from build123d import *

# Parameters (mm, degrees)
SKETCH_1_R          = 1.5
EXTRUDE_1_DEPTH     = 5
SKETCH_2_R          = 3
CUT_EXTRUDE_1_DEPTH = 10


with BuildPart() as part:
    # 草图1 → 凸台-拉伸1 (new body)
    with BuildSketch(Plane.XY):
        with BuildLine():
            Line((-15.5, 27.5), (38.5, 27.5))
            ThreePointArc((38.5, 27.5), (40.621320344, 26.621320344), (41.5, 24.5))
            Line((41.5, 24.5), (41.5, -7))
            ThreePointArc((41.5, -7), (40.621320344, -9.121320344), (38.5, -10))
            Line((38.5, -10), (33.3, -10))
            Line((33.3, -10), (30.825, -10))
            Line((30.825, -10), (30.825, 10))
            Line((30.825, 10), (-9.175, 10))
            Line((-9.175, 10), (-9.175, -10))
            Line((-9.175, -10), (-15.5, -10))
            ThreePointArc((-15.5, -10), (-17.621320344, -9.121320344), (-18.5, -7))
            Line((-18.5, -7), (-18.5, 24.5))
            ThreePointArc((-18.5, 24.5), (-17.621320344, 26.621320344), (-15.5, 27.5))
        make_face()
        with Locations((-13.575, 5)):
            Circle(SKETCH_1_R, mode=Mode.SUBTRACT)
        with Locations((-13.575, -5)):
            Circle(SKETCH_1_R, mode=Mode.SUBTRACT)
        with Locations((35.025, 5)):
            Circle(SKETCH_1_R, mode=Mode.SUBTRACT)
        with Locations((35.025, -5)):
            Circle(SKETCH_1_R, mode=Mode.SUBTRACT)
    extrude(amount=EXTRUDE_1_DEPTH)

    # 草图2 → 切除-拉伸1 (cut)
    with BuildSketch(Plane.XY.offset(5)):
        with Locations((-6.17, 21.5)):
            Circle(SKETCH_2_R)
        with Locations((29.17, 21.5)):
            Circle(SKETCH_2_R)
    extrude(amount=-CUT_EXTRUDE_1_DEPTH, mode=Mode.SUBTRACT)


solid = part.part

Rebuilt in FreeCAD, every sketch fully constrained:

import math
import FreeCAD as App
import Part
import Sketcher

V = App.Vector

doc = App.newDocument("Part")
params = doc.addObject("Spreadsheet::Sheet", "Params")
for row, (alias, value) in enumerate([
    ("sketch1_diameter", "3 mm"),
    ("sketch1_radius", "3 mm"),
    ("sketch1_width", "54 mm"),
    ("sketch1_width2", "40 mm"),
    ("sketch1_height", "20 mm"),
    ("pad1_length", "5 mm"),
    ("sketch2_diameter", "6 mm"),
    ("pocket1_length", "10 mm"),
], start=1):
    params.set(f"A{row}", alias)
    params.set(f"B{row}", "=" + value)
    params.setAlias(f"B{row}", alias)

body = doc.addObject("PartDesign::Body", "Body")

# Sketch on XY plane
sketch1 = body.newObject("Sketcher::SketchObject", "Sketch")
sketch1.AttachmentSupport = (doc.getObject("XY_Plane"), [""])
sketch1.MapMode = "FlatFace"
sketch1.addGeometry(Part.LineSegment(V(38.5, 27.5, 0), V(-15.5, 27.5, 0)), False)
sketch1.addGeometry(Part.ArcOfCircle(Part.Circle(V(-15.5, 24.5, 0), V(0, 0, 1), 3), math.radians(90), math.radians(180)), False)
sketch1.addGeometry(Part.LineSegment(V(-18.5, 24.5, 0), V(-18.5, -7, 0)), False)
sketch1.addGeometry(Part.ArcOfCircle(Part.Circle(V(-15.5, -7, 0), V(0, 0, 1), 3), math.radians(180), math.radians(270)), False)
sketch1.addGeometry(Part.LineSegment(V(-15.5, -10, 0), V(-9.2, -10, 0)), False)
sketch1.addGeometry(Part.LineSegment(V(-9.2, -10, 0), V(-9.2, 10, 0)), False)
sketch1.addGeometry(Part.LineSegment(V(-9.2, 10, 0), V(30.8, 10, 0)), False)
sketch1.addGeometry(Part.LineSegment(V(30.8, 10, 0), V(30.8, -10, 0)), False)
sketch1.addGeometry(Part.LineSegment(V(30.8, -10, 0), V(38.5, -10, 0)), False)
sketch1.addGeometry(Part.ArcOfCircle(Part.Circle(V(38.5, -7, 0), V(0, 0, 1), 3), math.radians(-90), math.radians(0)), False)
sketch1.addGeometry(Part.LineSegment(V(41.5, -7, 0), V(41.5, 24.5, 0)), False)
sketch1.addGeometry(Part.ArcOfCircle(Part.Circle(V(38.5, 24.5, 0), V(0, 0, 1), 3), math.radians(0), math.radians(90)), False)
sketch1.addGeometry(Part.Circle(V(35, -5, 0), V(0, 0, 1), 1.5), False)
sketch1.addGeometry(Part.Circle(V(-13.6, -5, 0), V(0, 0, 1), 1.5), False)
sketch1.addGeometry(Part.Circle(V(35, 5, 0), V(0, 0, 1), 1.5), False)
sketch1.addGeometry(Part.Circle(V(-13.6, 5, 0), V(0, 0, 1), 1.5), False)
sketch1.addConstraint(Sketcher.Constraint("Tangent", 0, 2, 1, 1))
sketch1.addConstraint(Sketcher.Constraint("Tangent", 1, 2, 2, 1))
sketch1.addConstraint(Sketcher.Constraint("Tangent", 2, 2, 3, 1))
sketch1.addConstraint(Sketcher.Constraint("Tangent", 3, 2, 4, 1))
sketch1.addConstraint(Sketcher.Constraint("Coincident", 4, 2, 5, 1))
sketch1.addConstraint(Sketcher.Constraint("Coincident", 5, 2, 6, 1))
sketch1.addConstraint(Sketcher.Constraint("Coincident", 6, 2, 7, 1))
sketch1.addConstraint(Sketcher.Constraint("Coincident", 7, 2, 8, 1))
sketch1.addConstraint(Sketcher.Constraint("Tangent", 8, 2, 9, 1))
sketch1.addConstraint(Sketcher.Constraint("Tangent", 9, 2, 10, 1))
sketch1.addConstraint(Sketcher.Constraint("Tangent", 10, 2, 11, 1))
sketch1.addConstraint(Sketcher.Constraint("Tangent", 11, 2, 0, 1))
sketch1.addConstraint(Sketcher.Constraint("Horizontal", 0))
sketch1.addConstraint(Sketcher.Constraint("Vertical", 2))
sketch1.addConstraint(Sketcher.Constraint("Horizontal", 4))
sketch1.addConstraint(Sketcher.Constraint("Vertical", 5))
sketch1.addConstraint(Sketcher.Constraint("Horizontal", 6))
sketch1.addConstraint(Sketcher.Constraint("Vertical", 7))
sketch1.addConstraint(Sketcher.Constraint("Horizontal", 8))
sketch1.addConstraint(Sketcher.Constraint("Vertical", 10))
sketch1.addConstraint(Sketcher.Constraint("Equal", 1, 3))
sketch1.addConstraint(Sketcher.Constraint("Equal", 3, 9))
sketch1.addConstraint(Sketcher.Constraint("Equal", 9, 11))
sketch1.addConstraint(Sketcher.Constraint("Equal", 12, 13))
sketch1.addConstraint(Sketcher.Constraint("Equal", 13, 14))
sketch1.addConstraint(Sketcher.Constraint("Equal", 14, 15))
sketch1.addConstraint(Sketcher.Constraint("Symmetric", 12, 3, 14, 3, -1))
sketch1.addConstraint(Sketcher.Constraint("Symmetric", 13, 3, 15, 3, -1))
sketch1.addConstraint(Sketcher.Constraint("Horizontal", 3, 3, 9, 3))
sketch1.addConstraint(Sketcher.Constraint("Horizontal", 12, 3, 13, 3))
sketch1.addConstraint(Sketcher.Constraint("Diameter", 12, 3.0))
sketch1.addConstraint(Sketcher.Constraint("Radius", 1, 3.0))
sketch1.addConstraint(Sketcher.Constraint("DistanceX", 0, 2, 0, 1, 54.0))
sketch1.addConstraint(Sketcher.Constraint("DistanceX", 6, 1, 6, 2, 40.0))
sketch1.addConstraint(Sketcher.Constraint("DistanceY", 5, 1, 5, 2, 20.0))
sketch1.addConstraint(Sketcher.Constraint("DistanceY", 2, 2, 2, 1, 31.5))
sketch1.addConstraint(Sketcher.Constraint("DistanceY", 3, 3, -1, 1, 7.0))
sketch1.addConstraint(Sketcher.Constraint("DistanceY", 12, 3, -1, 1, 5.0))
sketch1.addConstraint(Sketcher.Constraint("DistanceX", 1, 3, -1, 1, 15.5))
sketch1.addConstraint(Sketcher.Constraint("DistanceX", 13, 3, 12, 3, 48.6))
sketch1.addConstraint(Sketcher.Constraint("DistanceX", 13, 3, 4, 2, 4.4))
sketch1.addConstraint(Sketcher.Constraint("DistanceX", 4, 1, 4, 2, 6.325))
sketch1.setExpression("Constraints[30]", "Params.sketch1_diameter")
sketch1.setExpression("Constraints[31]", "Params.sketch1_radius")
sketch1.setExpression("Constraints[32]", "Params.sketch1_width")
sketch1.setExpression("Constraints[33]", "Params.sketch1_width2")
sketch1.setExpression("Constraints[34]", "Params.sketch1_height")
pad1 = body.newObject("PartDesign::Pad", "Pad")
pad1.Profile = sketch1
pad1.setExpression("Length", "Params.pad1_length")

# Sketch on XY plane
sketch2 = body.newObject("Sketcher::SketchObject", "Sketch001")
sketch2.AttachmentSupport = (doc.getObject("XY_Plane"), [""])
sketch2.MapMode = "FlatFace"
sketch2.AttachmentOffset = App.Placement(V(0, 0, 5), App.Rotation())
sketch2.addGeometry(Part.Circle(V(-6.2, 21.5, 0), V(0, 0, 1), 3), False)
sketch2.addGeometry(Part.Circle(V(29.2, 21.5, 0), V(0, 0, 1), 3), False)
sketch2.addConstraint(Sketcher.Constraint("Equal", 0, 1))
sketch2.addConstraint(Sketcher.Constraint("Horizontal", 0, 3, 1, 3))
sketch2.addConstraint(Sketcher.Constraint("Diameter", 0, 6.0))
sketch2.addConstraint(Sketcher.Constraint("DistanceY", -1, 1, 0, 3, 21.5))
sketch2.addConstraint(Sketcher.Constraint("DistanceX", 0, 3, -1, 1, 6.17))
sketch2.addConstraint(Sketcher.Constraint("DistanceX", -1, 1, 1, 3, 29.17))
sketch2.setExpression("Constraints[2]", "Params.sketch2_diameter")
pocket1 = body.newObject("PartDesign::Pocket", "Pocket")
pocket1.Profile = sketch2
pocket1.setExpression("Length", "Params.pocket1_length")

doc.recompute()
